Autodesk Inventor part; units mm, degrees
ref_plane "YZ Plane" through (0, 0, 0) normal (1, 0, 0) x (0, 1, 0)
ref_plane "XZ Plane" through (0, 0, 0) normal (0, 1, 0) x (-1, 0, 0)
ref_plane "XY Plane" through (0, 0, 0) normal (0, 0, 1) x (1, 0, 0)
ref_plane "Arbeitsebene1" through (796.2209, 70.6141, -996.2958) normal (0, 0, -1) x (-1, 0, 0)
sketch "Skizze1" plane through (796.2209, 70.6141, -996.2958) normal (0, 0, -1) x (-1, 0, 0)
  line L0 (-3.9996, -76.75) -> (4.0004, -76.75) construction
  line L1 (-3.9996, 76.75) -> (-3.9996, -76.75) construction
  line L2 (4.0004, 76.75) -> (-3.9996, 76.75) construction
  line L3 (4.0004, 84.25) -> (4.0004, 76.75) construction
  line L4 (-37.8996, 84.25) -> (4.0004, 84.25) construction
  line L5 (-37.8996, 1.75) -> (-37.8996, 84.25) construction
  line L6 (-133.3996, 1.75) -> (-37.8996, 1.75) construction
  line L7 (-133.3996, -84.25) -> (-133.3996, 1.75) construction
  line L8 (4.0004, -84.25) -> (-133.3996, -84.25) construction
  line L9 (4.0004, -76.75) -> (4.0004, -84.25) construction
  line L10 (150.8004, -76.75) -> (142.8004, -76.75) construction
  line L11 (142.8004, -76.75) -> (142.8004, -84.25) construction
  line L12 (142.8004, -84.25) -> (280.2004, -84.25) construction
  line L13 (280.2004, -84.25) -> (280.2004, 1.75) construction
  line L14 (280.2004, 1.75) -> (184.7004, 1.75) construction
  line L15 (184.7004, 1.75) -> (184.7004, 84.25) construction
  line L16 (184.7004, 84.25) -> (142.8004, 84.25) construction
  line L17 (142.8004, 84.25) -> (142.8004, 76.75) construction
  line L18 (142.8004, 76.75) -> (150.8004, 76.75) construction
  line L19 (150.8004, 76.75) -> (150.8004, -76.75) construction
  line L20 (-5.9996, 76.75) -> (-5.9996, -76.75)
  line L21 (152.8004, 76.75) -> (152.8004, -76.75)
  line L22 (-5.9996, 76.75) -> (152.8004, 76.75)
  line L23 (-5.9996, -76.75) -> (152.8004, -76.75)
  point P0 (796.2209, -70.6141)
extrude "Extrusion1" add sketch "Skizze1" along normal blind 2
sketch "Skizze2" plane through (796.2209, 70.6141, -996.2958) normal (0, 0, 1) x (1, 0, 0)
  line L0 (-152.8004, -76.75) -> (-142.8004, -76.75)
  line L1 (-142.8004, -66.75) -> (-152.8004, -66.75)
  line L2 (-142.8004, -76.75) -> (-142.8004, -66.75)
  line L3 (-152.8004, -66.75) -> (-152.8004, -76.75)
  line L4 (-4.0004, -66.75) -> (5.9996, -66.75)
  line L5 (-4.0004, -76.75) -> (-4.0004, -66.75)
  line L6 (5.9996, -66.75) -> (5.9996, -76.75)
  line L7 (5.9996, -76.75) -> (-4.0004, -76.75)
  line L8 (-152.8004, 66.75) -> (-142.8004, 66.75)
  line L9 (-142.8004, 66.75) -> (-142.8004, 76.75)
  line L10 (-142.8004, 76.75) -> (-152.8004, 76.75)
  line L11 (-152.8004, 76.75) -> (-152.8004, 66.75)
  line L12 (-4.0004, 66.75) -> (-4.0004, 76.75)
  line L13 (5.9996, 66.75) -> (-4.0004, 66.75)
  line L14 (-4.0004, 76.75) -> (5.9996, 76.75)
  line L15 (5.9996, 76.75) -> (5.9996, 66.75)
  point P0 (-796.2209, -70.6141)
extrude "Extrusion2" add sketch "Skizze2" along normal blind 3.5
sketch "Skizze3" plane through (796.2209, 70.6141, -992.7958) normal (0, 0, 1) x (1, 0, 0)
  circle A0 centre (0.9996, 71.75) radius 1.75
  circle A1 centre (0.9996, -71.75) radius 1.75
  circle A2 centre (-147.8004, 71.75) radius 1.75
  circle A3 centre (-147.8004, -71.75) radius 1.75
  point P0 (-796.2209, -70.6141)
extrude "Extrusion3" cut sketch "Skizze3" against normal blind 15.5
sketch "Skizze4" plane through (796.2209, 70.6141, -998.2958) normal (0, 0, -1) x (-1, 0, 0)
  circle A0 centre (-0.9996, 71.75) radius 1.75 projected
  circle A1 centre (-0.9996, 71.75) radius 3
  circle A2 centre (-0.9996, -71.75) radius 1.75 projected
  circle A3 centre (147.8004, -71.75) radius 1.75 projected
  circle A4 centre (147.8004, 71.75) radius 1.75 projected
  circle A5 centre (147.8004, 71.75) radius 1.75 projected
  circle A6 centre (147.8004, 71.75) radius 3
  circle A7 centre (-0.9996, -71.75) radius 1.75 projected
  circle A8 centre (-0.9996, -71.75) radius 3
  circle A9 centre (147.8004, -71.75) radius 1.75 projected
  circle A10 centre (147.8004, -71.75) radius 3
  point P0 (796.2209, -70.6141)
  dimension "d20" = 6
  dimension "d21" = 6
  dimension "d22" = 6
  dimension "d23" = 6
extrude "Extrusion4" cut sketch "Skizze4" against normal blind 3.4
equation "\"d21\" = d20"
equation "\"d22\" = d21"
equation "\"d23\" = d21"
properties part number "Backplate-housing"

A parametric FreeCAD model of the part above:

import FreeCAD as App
import Part
import Sketcher

doc = App.newDocument("Part")
body = doc.addObject("PartDesign::Body", "Body")

# Sketch on XY plane
sketch1 = body.newObject("Sketcher::SketchObject", "Sketch")
sketch1.AttachmentSupport = (doc.getObject("XY_Plane"), [""])
sketch1.MapMode = "FlatFace"
sketch1.AttachmentOffset = App.Placement(App.Vector(0, 0, -996.2958), App.Rotation())
sketch1.addGeometry([
    Part.LineSegment(App.Vector(643, 147, 0), App.Vector(802, 147, 0)),
    Part.LineSegment(App.Vector(802, 147, 0), App.Vector(802, -6, 0)),
    Part.LineSegment(App.Vector(802, -6, 0), App.Vector(643, -6, 0)),
    Part.LineSegment(App.Vector(643, -6, 0), App.Vector(643, 147, 0)),
], False)
sketch1.addConstraint([
    Sketcher.Constraint("Coincident", 0, 2, 1, 1),
    Sketcher.Constraint("Coincident", 1, 2, 2, 1),
    Sketcher.Constraint("Coincident", 2, 2, 3, 1),
    Sketcher.Constraint("Coincident", 3, 2, 0, 1),
    Sketcher.Constraint("Horizontal", 0),
    Sketcher.Constraint("Vertical", 1),
    Sketcher.Constraint("Horizontal", 2),
    Sketcher.Constraint("Vertical", 3),
    Sketcher.Constraint("DistanceX", 0, 1, 0, 2, 158.8),
    Sketcher.Constraint("DistanceY", 1, 2, 1, 1, 153.5),
    Sketcher.Constraint("DistanceY", -1, 1, 0, 2, 147.364),
    Sketcher.Constraint("DistanceX", -1, 1, 0, 2, 802.2205),
])
pad1 = body.newObject("PartDesign::Pad", "Pad")
pad1.Profile = sketch1
pad1.Length = 2
pad1.Reversed = True

# Sketch on XY plane
sketch2 = body.newObject("Sketcher::SketchObject", "Sketch001")
sketch2.AttachmentSupport = (doc.getObject("XY_Plane"), [""])
sketch2.MapMode = "FlatFace"
sketch2.AttachmentOffset = App.Placement(App.Vector(0, 0, -996.2958), App.Rotation())
sketch2.addGeometry([
    Part.LineSegment(App.Vector(643, 4, 0), App.Vector(643, -6, 0)),  # 0
    Part.LineSegment(App.Vector(643, -6, 0), App.Vector(653, -6, 0)),  # 1
    Part.LineSegment(App.Vector(653, -6, 0), App.Vector(653, 4, 0)),  # 2
    Part.LineSegment(App.Vector(653, 4, 0), App.Vector(643, 4, 0)),  # 3
    Part.LineSegment(App.Vector(802, 4, 0), App.Vector(792, 4, 0)),  # 4
    Part.LineSegment(App.Vector(792, 4, 0), App.Vector(792, -6, 0)),  # 5
    Part.LineSegment(App.Vector(792, -6, 0), App.Vector(802, -6, 0)),  # 6
    Part.LineSegment(App.Vector(802, -6, 0), App.Vector(802, 4, 0)),  # 7
    Part.LineSegment(App.Vector(643, 147, 0), App.Vector(643, 137, 0)),  # 8
    Part.LineSegment(App.Vector(643, 137, 0), App.Vector(653, 137, 0)),  # 9
    Part.LineSegment(App.Vector(653, 137, 0), App.Vector(653, 147, 0)),  # 10
    Part.LineSegment(App.Vector(653, 147, 0), App.Vector(643, 147, 0)),  # 11
    Part.LineSegment(App.Vector(792, 147, 0), App.Vector(792, 137, 0)),  # 12
    Part.LineSegment(App.Vector(792, 137, 0), App.Vector(802, 137, 0)),  # 13
    Part.LineSegment(App.Vector(802, 137, 0), App.Vector(802, 147, 0)),  # 14
    Part.LineSegment(App.Vector(802, 147, 0), App.Vector(792, 147, 0)),  # 15
], False)
sketch2.addConstraint([
    Sketcher.Constraint("Coincident", 0, 2, 1, 1),
    Sketcher.Constraint("Coincident", 1, 2, 2, 1),
    Sketcher.Constraint("Coincident", 2, 2, 3, 1),
    Sketcher.Constraint("Coincident", 3, 2, 0, 1),
    Sketcher.Constraint("Coincident", 4, 2, 5, 1),
    Sketcher.Constraint("Coincident", 5, 2, 6, 1),
    Sketcher.Constraint("Coincident", 6, 2, 7, 1),
    Sketcher.Constraint("Coincident", 7, 2, 4, 1),
    Sketcher.Constraint("Coincident", 8, 2, 9, 1),
    Sketcher.Constraint("Coincident", 9, 2, 10, 1),
    Sketcher.Constraint("Coincident", 10, 2, 11, 1),
    Sketcher.Constraint("Coincident", 11, 2, 8, 1),
    Sketcher.Constraint("Coincident", 12, 2, 13, 1),
    Sketcher.Constraint("Coincident", 13, 2, 14, 1),
    Sketcher.Constraint("Coincident", 14, 2, 15, 1),
    Sketcher.Constraint("Coincident", 15, 2, 12, 1),
    Sketcher.Constraint("Vertical", 0),
    Sketcher.Constraint("Horizontal", 1),
    Sketcher.Constraint("Vertical", 2),
    Sketcher.Constraint("Horizontal", 3),
    Sketcher.Constraint("Horizontal", 4),
    Sketcher.Constraint("Vertical", 5),
    Sketcher.Constraint("Horizontal", 6),
    Sketcher.Constraint("Vertical", 7),
    Sketcher.Constraint("Vertical", 8),
    Sketcher.Constraint("Horizontal", 9),
    Sketcher.Constraint("Vertical", 10),
    Sketcher.Constraint("Horizontal", 11),
    Sketcher.Constraint("Vertical", 12),
    Sketcher.Constraint("Horizontal", 13),
    Sketcher.Constraint("Vertical", 14),
    Sketcher.Constraint("Horizontal", 15),
    Sketcher.Constraint("Horizontal", 3, 2, 4, 2),
    Sketcher.Constraint("Horizontal", 1, 2, 5, 2),
    Sketcher.Constraint("Horizontal", 9, 2, 12, 2),
    Sketcher.Constraint("Horizontal", 11, 2, 14, 2),
    Sketcher.Constraint("Vertical", 3, 2, 8, 2),
    Sketcher.Constraint("Vertical", 2, 2, 9, 2),
    Sketcher.Constraint("Vertical", 5, 2, 12, 2),
    Sketcher.Constraint("Vertical", 7, 2, 13, 2),
    Sketcher.Constraint("Equal", 3, 4),
    Sketcher.Constraint("Equal", 15, 0),
    Sketcher.Constraint("Equal", 7, 8),
    Sketcher.Constraint("DistanceX", 1, 1, 1, 2, 10.0),
    Sketcher.Constraint("DistanceX", 2, 2, 4, 2, 138.8),
    Sketcher.Constraint("DistanceY", 3, 2, 8, 2, 133.5),
    Sketcher.Constraint("DistanceY", 0, 2, -1, 1, 6.136),
    Sketcher.Constraint("DistanceX", -1, 1, 0, 2, 643.4205),
])
pad2 = body.newObject("PartDesign::Pad", "Pad001")
pad2.Profile = sketch2
pad2.Length = 3.5

# Sketch on XY plane
sketch3 = body.newObject("Sketcher::SketchObject", "Sketch002")
sketch3.AttachmentSupport = (doc.getObject("XY_Plane"), [""])
sketch3.MapMode = "FlatFace"
sketch3.AttachmentOffset = App.Placement(App.Vector(0, 0, -992.7958), App.Rotation())
sketch3.addGeometry([
    Part.Circle(App.Vector(797.2, 142.4, 0), App.Vector(0, 0, 1), 1.8),
    Part.Circle(App.Vector(797.2, -1.1, 0), App.Vector(0, 0, 1), 1.8),
    Part.Circle(App.Vector(648.4, 142.4, 0), App.Vector(0, 0, 1), 1.8),
    Part.Circle(App.Vector(648.4, -1.1, 0), App.Vector(0, 0, 1), 1.8),
], False)
sketch3.addConstraint([
    Sketcher.Constraint("Equal", 0, 1),
    Sketcher.Constraint("Equal", 1, 2),
    Sketcher.Constraint("Equal", 2, 3),
    Sketcher.Constraint("Horizontal", 0, 3, 2, 3),
    Sketcher.Constraint("Horizontal", 1, 3, 3, 3),
    Sketcher.Constraint("Vertical", 0, 3, 1, 3),
    Sketcher.Constraint("Vertical", 2, 3, 3, 3),
    Sketcher.Constraint("Diameter", 0, 3.5),
    Sketcher.Constraint("DistanceY", 1, 3, 0, 3, 143.5),
    Sketcher.Constraint("DistanceX", 2, 3, 0, 3, 148.8),
    Sketcher.Constraint("DistanceY", -1, 1, 0, 3, 142.364),
    Sketcher.Constraint("DistanceX", -1, 1, 0, 3, 797.2205),
])
pocket1 = body.newObject("PartDesign::Pocket", "Pocket")
pocket1.Profile = sketch3
pocket1.Length = 15.5

# Sketch on XY plane
sketch4 = body.newObject("Sketcher::SketchObject", "Sketch003")
sketch4.AttachmentSupport = (doc.getObject("XY_Plane"), [""])
sketch4.MapMode = "FlatFace"
sketch4.AttachmentOffset = App.Placement(App.Vector(0, 0, -998.2958), App.Rotation())
sketch4.addGeometry([
    Part.Circle(App.Vector(797.2, 142.4, 0), App.Vector(0, 0, 1), 3),  # 0
    Part.Circle(App.Vector(797.2, 142.4, 0), App.Vector(0, 0, 1), 1.8),  # 1
    Part.Circle(App.Vector(648.4, 142.4, 0), App.Vector(0, 0, 1), 3),  # 2
    Part.Circle(App.Vector(648.4, 142.4, 0), App.Vector(0, 0, 1), 1.8),  # 3
    Part.Circle(App.Vector(797.2, -1.1, 0), App.Vector(0, 0, 1), 3),  # 4
    Part.Circle(App.Vector(797.2, -1.1, 0), App.Vector(0, 0, 1), 1.8),  # 5
    Part.Circle(App.Vector(648.4, -1.1, 0), App.Vector(0, 0, 1), 3),  # 6
    Part.Circle(App.Vector(648.4, -1.1, 0), App.Vector(0, 0, 1), 1.8),  # 7
], False)
sketch4.addConstraint([
    Sketcher.Constraint("Coincident", 1, 3, 0, 3),
    Sketcher.Constraint("Coincident", 3, 3, 2, 3),
    Sketcher.Constraint("Coincident", 5, 3, 4, 3),
    Sketcher.Constraint("Coincident", 7, 3, 6, 3),
    Sketcher.Constraint("Equal", 0, 2),
    Sketcher.Constraint("Equal", 1, 3),
    Sketcher.Constraint("Equal", 2, 4),
    Sketcher.Constraint("Equal", 3, 5),
    Sketcher.Constraint("Equal", 4, 6),
    Sketcher.Constraint("Equal", 5, 7),
    Sketcher.Constraint("Horizontal", 1, 3, 2, 3),
    Sketcher.Constraint("Horizontal", 5, 3, 6, 3),
    Sketcher.Constraint("Vertical", 1, 3, 4, 3),
    Sketcher.Constraint("Vertical", 3, 3, 6, 3),
    Sketcher.Constraint("Diameter", 0, 6.0),
    Sketcher.Constraint("Diameter", 1, 3.5),
    Sketcher.Constraint("DistanceX", 2, 3, 0, 3, 148.8),
    Sketcher.Constraint("DistanceY", 4, 3, 0, 3, 143.5),
    Sketcher.Constraint("DistanceY", -1, 1, 0, 3, 142.364),
    Sketcher.Constraint("DistanceX", -1, 1, 0, 3, 797.2205),
])
pocket2 = body.newObject("PartDesign::Pocket", "Pocket001")
pocket2.Profile = sketch4
pocket2.Length = 3.4
pocket2.Reversed = True

doc.recompute()
